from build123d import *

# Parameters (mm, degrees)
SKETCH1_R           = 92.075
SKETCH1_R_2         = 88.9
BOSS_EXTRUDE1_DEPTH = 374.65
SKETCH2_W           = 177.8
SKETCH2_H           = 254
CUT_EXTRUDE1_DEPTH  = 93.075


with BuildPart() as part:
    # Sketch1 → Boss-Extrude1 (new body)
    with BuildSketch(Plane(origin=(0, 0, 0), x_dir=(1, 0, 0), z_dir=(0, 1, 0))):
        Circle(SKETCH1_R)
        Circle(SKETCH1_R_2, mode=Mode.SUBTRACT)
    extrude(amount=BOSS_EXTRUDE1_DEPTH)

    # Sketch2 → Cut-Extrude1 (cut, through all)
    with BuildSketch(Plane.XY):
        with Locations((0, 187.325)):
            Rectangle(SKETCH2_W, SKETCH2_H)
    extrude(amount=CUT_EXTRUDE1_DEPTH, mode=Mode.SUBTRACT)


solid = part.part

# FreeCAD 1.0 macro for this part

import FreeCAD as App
import Part
import Sketcher
from FreeCAD import Vector
Q = App.Units.Quantity


def add_polygon(sketch, points):
    """Adds a closed chain of lines whose ends are joined by coincident constraints."""
    first, n = sketch.GeometryCount, len(points)
    for a, b in zip(points, points[1:] + points[:1]):
        sketch.addGeometry(Part.LineSegment(App.Vector(*a, 0), App.Vector(*b, 0)), False)
    for i in range(n):
        sketch.addConstraint(Sketcher.Constraint("Coincident", first + i, 2, first + (i + 1) % n, 1))

doc = App.newDocument("Part")
body = doc.addObject("PartDesign::Body", "Body")

sketch1 = body.newObject("Sketcher::SketchObject", "Sketch")
sketch1.AttachmentSupport = (doc.getObject("XZ_Plane"), [""])
sketch1.MapMode = "FlatFace"
sketch1.addGeometry(Part.Circle(Vector(0, 0, 0), Vector(0, 0, 1), 92), False)
sketch1.addGeometry(Part.Circle(Vector(0, 0, 0), Vector(0, 0, 1), 89), False)
sketch1.addConstraint(Sketcher.Constraint("Coincident", 0, 3, -1, 1))
sketch1.addConstraint(Sketcher.Constraint("Coincident", 1, 3, -1, 1))
sketch1.addConstraint(Sketcher.Constraint("Diameter", 1, Q("7 in")))
sketch1.addConstraint(Sketcher.Constraint("Diameter", 0, Q("7.25 in")))
pad1 = body.newObject("PartDesign::Pad", "Pad")
pad1.Profile = sketch1
pad1.Length = Q("14.75 in")
pad1.Reversed = True

sketch2 = body.newObject("Sketcher::SketchObject", "Sketch001")
sketch2.AttachmentSupport = (doc.getObject("XY_Plane"), [""])
sketch2.MapMode = "FlatFace"
add_polygon(sketch2, [(-89, 314), (-89, 60), (89, 60), (89, 314)])
sketch2.addConstraint(Sketcher.Constraint("Vertical", 0))
sketch2.addConstraint(Sketcher.Constraint("Horizontal", 1))
sketch2.addConstraint(Sketcher.Constraint("Vertical", 2))
sketch2.addConstraint(Sketcher.Constraint("Horizontal", 3))
sketch2.addConstraint(Sketcher.Constraint("DistanceX", 1, 1, 1, 2, Q("7 in")))
sketch2.addConstraint(Sketcher.Constraint("DistanceY", 0, 2, 0, 1, Q("10 in")))
sketch2.addConstraint(Sketcher.Constraint("DistanceX", 0, 2, -1, 1, Q("3.5 in")))
sketch2.addConstraint(Sketcher.Constraint("DistanceY", -1, 1, 0, 2, Q("2.375 in")))
pocket1 = body.newObject("PartDesign::Pocket", "Pocket")
pocket1.Profile = sketch2
pocket1.Type = "ThroughAll"
pocket1.Reversed = True

doc.recompute()
